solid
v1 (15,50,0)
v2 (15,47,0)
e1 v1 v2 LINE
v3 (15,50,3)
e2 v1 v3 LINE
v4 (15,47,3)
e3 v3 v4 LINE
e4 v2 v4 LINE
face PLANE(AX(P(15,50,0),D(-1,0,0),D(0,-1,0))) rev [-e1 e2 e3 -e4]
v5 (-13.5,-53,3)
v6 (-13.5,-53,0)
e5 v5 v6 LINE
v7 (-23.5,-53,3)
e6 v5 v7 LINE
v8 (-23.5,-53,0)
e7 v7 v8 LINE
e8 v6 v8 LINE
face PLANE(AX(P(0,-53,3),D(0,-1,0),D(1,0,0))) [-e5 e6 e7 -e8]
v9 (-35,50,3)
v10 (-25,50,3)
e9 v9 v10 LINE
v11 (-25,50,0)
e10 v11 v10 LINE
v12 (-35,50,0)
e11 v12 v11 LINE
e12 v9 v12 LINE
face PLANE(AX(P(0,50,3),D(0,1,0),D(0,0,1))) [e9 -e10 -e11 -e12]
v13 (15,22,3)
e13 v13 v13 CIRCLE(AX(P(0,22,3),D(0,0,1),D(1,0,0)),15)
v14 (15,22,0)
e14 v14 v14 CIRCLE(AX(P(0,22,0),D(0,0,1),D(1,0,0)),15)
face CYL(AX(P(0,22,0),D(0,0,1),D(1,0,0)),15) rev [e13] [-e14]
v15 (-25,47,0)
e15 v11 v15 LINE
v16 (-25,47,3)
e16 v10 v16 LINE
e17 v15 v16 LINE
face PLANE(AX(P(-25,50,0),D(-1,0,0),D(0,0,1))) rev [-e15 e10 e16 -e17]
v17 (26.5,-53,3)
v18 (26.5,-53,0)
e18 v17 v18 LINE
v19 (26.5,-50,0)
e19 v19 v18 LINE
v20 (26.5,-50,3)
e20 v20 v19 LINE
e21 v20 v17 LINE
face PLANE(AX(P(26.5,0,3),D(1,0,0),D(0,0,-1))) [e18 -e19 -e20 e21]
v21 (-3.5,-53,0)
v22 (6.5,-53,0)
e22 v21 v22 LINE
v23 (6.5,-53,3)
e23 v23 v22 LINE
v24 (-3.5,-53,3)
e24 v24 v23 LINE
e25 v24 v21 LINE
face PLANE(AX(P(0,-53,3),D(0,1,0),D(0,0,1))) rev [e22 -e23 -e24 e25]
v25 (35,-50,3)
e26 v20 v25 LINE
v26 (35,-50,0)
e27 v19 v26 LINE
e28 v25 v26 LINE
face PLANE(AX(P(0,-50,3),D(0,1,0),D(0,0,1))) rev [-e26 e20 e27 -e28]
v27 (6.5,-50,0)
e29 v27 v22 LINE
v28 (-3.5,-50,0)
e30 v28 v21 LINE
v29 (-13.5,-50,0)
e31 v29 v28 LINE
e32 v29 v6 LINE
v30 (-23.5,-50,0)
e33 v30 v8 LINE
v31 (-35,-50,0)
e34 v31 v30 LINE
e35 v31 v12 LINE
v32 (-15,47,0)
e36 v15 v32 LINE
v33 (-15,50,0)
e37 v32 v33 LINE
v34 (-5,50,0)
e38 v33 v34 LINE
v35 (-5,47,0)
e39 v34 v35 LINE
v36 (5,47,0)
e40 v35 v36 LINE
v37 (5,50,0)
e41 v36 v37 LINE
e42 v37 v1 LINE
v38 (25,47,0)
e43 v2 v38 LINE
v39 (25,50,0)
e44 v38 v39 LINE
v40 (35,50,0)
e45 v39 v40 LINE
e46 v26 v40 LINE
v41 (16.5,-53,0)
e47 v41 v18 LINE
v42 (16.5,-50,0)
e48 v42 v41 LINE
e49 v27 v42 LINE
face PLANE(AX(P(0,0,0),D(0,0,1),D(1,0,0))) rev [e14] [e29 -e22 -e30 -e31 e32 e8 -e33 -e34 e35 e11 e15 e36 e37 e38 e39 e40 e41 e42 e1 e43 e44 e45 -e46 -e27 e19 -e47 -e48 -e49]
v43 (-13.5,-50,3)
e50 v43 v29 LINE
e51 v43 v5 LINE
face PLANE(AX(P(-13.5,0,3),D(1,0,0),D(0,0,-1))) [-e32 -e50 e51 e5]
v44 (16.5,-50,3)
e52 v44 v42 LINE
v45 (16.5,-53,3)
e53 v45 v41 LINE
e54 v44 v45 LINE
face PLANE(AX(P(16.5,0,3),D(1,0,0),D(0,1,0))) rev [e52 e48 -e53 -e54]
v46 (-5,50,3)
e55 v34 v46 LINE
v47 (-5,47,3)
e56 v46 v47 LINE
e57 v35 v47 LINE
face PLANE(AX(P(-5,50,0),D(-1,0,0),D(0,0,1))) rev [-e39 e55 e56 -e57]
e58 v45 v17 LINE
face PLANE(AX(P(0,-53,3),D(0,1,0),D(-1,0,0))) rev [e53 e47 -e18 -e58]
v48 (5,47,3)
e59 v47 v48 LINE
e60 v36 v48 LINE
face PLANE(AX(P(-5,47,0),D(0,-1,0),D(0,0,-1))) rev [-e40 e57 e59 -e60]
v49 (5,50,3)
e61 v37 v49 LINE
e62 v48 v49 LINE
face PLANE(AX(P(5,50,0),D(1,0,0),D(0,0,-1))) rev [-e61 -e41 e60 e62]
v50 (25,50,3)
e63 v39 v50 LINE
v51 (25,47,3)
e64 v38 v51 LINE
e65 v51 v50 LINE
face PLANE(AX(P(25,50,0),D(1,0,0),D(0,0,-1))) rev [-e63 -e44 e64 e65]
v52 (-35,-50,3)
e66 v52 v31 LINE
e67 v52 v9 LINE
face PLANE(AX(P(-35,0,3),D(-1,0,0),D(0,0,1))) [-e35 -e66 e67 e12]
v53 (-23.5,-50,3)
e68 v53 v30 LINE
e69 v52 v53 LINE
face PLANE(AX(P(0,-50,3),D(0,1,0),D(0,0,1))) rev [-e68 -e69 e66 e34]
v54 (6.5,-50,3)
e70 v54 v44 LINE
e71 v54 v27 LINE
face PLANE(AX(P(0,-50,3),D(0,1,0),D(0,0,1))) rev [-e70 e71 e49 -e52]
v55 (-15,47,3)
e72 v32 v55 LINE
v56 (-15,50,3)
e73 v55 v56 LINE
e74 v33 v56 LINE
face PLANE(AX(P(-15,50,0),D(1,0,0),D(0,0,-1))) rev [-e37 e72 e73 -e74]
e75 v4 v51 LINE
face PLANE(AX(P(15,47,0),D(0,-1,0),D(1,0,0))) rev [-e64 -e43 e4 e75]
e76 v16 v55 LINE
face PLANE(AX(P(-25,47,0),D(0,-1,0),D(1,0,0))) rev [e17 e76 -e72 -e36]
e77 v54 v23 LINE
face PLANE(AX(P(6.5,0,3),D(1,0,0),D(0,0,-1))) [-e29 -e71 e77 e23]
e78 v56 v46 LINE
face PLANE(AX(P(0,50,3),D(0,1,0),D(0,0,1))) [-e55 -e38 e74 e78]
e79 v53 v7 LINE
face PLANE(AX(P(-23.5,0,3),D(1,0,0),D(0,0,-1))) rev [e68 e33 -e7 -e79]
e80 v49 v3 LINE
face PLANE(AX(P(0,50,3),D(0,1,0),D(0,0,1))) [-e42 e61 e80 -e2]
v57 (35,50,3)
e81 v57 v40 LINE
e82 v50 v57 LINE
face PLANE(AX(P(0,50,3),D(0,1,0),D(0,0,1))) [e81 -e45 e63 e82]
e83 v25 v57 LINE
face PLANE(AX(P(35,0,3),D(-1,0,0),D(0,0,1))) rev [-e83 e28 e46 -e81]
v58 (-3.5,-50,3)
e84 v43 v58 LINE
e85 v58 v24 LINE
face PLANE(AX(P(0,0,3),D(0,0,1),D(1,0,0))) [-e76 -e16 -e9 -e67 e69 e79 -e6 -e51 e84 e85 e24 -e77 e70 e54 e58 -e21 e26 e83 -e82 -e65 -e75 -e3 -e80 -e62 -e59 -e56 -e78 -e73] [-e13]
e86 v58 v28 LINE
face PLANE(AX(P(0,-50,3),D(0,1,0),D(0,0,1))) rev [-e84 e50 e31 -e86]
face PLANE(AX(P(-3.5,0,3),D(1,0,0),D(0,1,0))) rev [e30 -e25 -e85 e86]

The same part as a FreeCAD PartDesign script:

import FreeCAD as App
import Part
import Sketcher
from FreeCAD import Vector

doc = App.newDocument("Part")
params = doc.addObject("Spreadsheet::Sheet", "Params")
for row, (alias, value) in enumerate([
    ("sketch1_width", "10 mm"),
    ("sketch1_width2", "70 mm"),
    ("sketch1_height", "100 mm"),
    ("sketch1_height2", "3 mm"),
    ("sketch1_width3", "11.5 mm"),
    ("pad1_length", "3 mm"),
    ("sketch2_width", "10 mm"),
    ("sketch2_height", "3 mm"),
    ("sketch3_diameter", "30 mm"),
], start=1):
    params.set(f"A{row}", alias)
    params.set(f"B{row}", "=" + value)
    params.setAlias(f"B{row}", alias)

body = doc.addObject("PartDesign::Body", "Body")

sketch1 = body.newObject("Sketcher::SketchObject", "Sketch")
sketch1.AttachmentSupport = (doc.getObject("XY_Plane"), [""])
sketch1.MapMode = "FlatFace"
sketch1.addGeometry([
    Part.LineSegment(Vector(-35, 50, 0), Vector(-35, -50, 0)),
    Part.LineSegment(Vector(-35, -50, 0), Vector(-23.5, -50, 0)),
    Part.LineSegment(Vector(-23.5, -50, 0), Vector(-23.5, -53, 0)),
    Part.LineSegment(Vector(-23.5, -53, 0), Vector(-13.5, -53, 0)),
    Part.LineSegment(Vector(-13.5, -53, 0), Vector(-13.5, -50, 0)),
    Part.LineSegment(Vector(-13.5, -50, 0), Vector(-3.5, -50, 0)),
    Part.LineSegment(Vector(-3.5, -50, 0), Vector(-3.5, -53, 0)),
    Part.LineSegment(Vector(-3.5, -53, 0), Vector(6.5, -53, 0)),
    Part.LineSegment(Vector(6.5, -53, 0), Vector(6.5, -50, 0)),
    Part.LineSegment(Vector(6.5, -50, 0), Vector(16.5, -50, 0)),
    Part.LineSegment(Vector(16.5, -50, 0), Vector(16.5, -53, 0)),
    Part.LineSegment(Vector(16.5, -53, 0), Vector(26.5, -53, 0)),
    Part.LineSegment(Vector(26.5, -53, 0), Vector(26.5, -50, 0)),
    Part.LineSegment(Vector(26.5, -50, 0), Vector(35, -50, 0)),
    Part.LineSegment(Vector(35, -50, 0), Vector(35, 50, 0)),
    Part.LineSegment(Vector(35, 50, 0), Vector(-35, 50, 0)),
], False)
sketch1.addConstraint([
    Sketcher.Constraint("Coincident", 0, 2, 1, 1),
    Sketcher.Constraint("Coincident", 1, 2, 2, 1),
    Sketcher.Constraint("Coincident", 2, 2, 3, 1),
    Sketcher.Constraint("Coincident", 3, 2, 4, 1),
    Sketcher.Constraint("Coincident", 4, 2, 5, 1),
    Sketcher.Constraint("Coincident", 5, 2, 6, 1),
    Sketcher.Constraint("Coincident", 6, 2, 7, 1),
    Sketcher.Constraint("Coincident", 7, 2, 8, 1),
    Sketcher.Constraint("Coincident", 8, 2, 9, 1),
    Sketcher.Constraint("Coincident", 9, 2, 10, 1),
    Sketcher.Constraint("Coincident", 10, 2, 11, 1),
    Sketcher.Constraint("Coincident", 11, 2, 12, 1),
    Sketcher.Constraint("Coincident", 12, 2, 13, 1),
    Sketcher.Constraint("Coincident", 13, 2, 14, 1),
    Sketcher.Constraint("Coincident", 14, 2, 15, 1),
    Sketcher.Constraint("Coincident", 15, 2, 0, 1),
    Sketcher.Constraint("Vertical", 0),
    Sketcher.Constraint("Horizontal", 1),
    Sketcher.Constraint("Vertical", 2),
    Sketcher.Constraint("Horizontal", 3),
    Sketcher.Constraint("Vertical", 4),
    Sketcher.Constraint("Horizontal", 5),
    Sketcher.Constraint("Vertical", 6),
    Sketcher.Constraint("Horizontal", 7),
    Sketcher.Constraint("Vertical", 8),
    Sketcher.Constraint("Horizontal", 9),
    Sketcher.Constraint("Vertical", 10),
    Sketcher.Constraint("Horizontal", 11),
    Sketcher.Constraint("Vertical", 12),
    Sketcher.Constraint("Horizontal", 13),
    Sketcher.Constraint("Vertical", 14),
    Sketcher.Constraint("Horizontal", 15),
    Sketcher.Constraint("Symmetric", 0, 2, 14, 2, -1, 1),
    Sketcher.Constraint("Horizontal", 1, 2, 4, 2),
    Sketcher.Constraint("Horizontal", 3, 2, 6, 2),
    Sketcher.Constraint("Horizontal", 5, 2, 8, 2),
    Sketcher.Constraint("Horizontal", 7, 2, 10, 2),
    Sketcher.Constraint("Horizontal", 9, 2, 12, 2),
    Sketcher.Constraint("Equal", 3, 5),
    Sketcher.Constraint("Equal", 5, 7),
    Sketcher.Constraint("Equal", 7, 9),
    Sketcher.Constraint("Equal", 9, 11),
    Sketcher.Constraint("DistanceX", 3, 1, 3, 2, 10.0),
    Sketcher.Constraint("DistanceX", 15, 2, 15, 1, 70.0),
    Sketcher.Constraint("DistanceY", 0, 2, 0, 1, 100.0),
    Sketcher.Constraint("DistanceY", 2, 2, 2, 1, 3.0),
    Sketcher.Constraint("DistanceX", 1, 1, 1, 2, 11.5),
])
sketch1.setExpression("Constraints[42]", "Params.sketch1_width")
sketch1.setExpression("Constraints[43]", "Params.sketch1_width2")
sketch1.setExpression("Constraints[44]", "Params.sketch1_height")
sketch1.setExpression("Constraints[45]", "Params.sketch1_height2")
sketch1.setExpression("Constraints[46]", "Params.sketch1_width3")
pad1 = body.newObject("PartDesign::Pad", "Pad")
pad1.Profile = sketch1
pad1.setExpression("Length", "Params.pad1_length")

sketch2 = body.newObject("Sketcher::SketchObject", "Sketch001")
sketch2.AttachmentSupport = (doc.getObject("XY_Plane"), [""])
sketch2.MapMode = "FlatFace"
sketch2.AttachmentOffset = App.Placement(Vector(0, 0, 3), App.Rotation())
sketch2.addGeometry([
    Part.LineSegment(Vector(-25, 50, 0), Vector(-25, 47, 0)),
    Part.LineSegment(Vector(-25, 47, 0), Vector(-15, 47, 0)),
    Part.LineSegment(Vector(-15, 47, 0), Vector(-15, 50, 0)),
    Part.LineSegment(Vector(-15, 50, 0), Vector(-25, 50, 0)),
    Part.LineSegment(Vector(-5, 50, 0), Vector(-5, 47, 0)),
    Part.LineSegment(Vector(-5, 47, 0), Vector(5, 47, 0)),
    Part.LineSegment(Vector(5, 47, 0), Vector(5, 50, 0)),
    Part.LineSegment(Vector(5, 50, 0), Vector(-5, 50, 0)),
    Part.LineSegment(Vector(15, 50, 0), Vector(15, 47, 0)),
    Part.LineSegment(Vector(15, 47, 0), Vector(25, 47, 0)),
    Part.LineSegment(Vector(25, 47, 0), Vector(25, 50, 0)),
    Part.LineSegment(Vector(25, 50, 0), Vector(15, 50, 0)),
], False)
sketch2.addConstraint([
    Sketcher.Constraint("Coincident", 0, 2, 1, 1),
    Sketcher.Constraint("Coincident", 1, 2, 2, 1),
    Sketcher.Constraint("Coincident", 2, 2, 3, 1),
    Sketcher.Constraint("Coincident", 3, 2, 0, 1),
    Sketcher.Constraint("Coincident", 4, 2, 5, 1),
    Sketcher.Constraint("Coincident", 5, 2, 6, 1),
    Sketcher.Constraint("Coincident", 6, 2, 7, 1),
    Sketcher.Constraint("Coincident", 7, 2, 4, 1),
    Sketcher.Constraint("Coincident", 8, 2, 9, 1),
    Sketcher.Constraint("Coincident", 9, 2, 10, 1),
    Sketcher.Constraint("Coincident", 10, 2, 11, 1),
    Sketcher.Constraint("Coincident", 11, 2, 8, 1),
    Sketcher.Constraint("Vertical", 0),
    Sketcher.Constraint("Horizontal", 1),
    Sketcher.Constraint("Vertical", 2),
    Sketcher.Constraint("Horizontal", 3),
    Sketcher.Constraint("Vertical", 4),
    Sketcher.Constraint("Horizontal", 5),
    Sketcher.Constraint("Vertical", 6),
    Sketcher.Constraint("Horizontal", 7),
    Sketcher.Constraint("Vertical", 8),
    Sketcher.Constraint("Horizontal", 9),
    Sketcher.Constraint("Vertical", 10),
    Sketcher.Constraint("Horizontal", 11),
    Sketcher.Constraint("Symmetric", 1, 2, 8, 2, -2),
    Sketcher.Constraint("Symmetric", 3, 2, 10, 2, -2),
    Sketcher.Constraint("Horizontal", 1, 2, 4, 2),
    Sketcher.Constraint("Horizontal", 3, 2, 6, 2),
    Sketcher.Constraint("Equal", 3, 5),
    Sketcher.Constraint("DistanceX", 1, 1, 1, 2, 10.0),
    Sketcher.Constraint("DistanceY", 0, 2, 0, 1, 3.0),
    Sketcher.Constraint("DistanceX", 0, 2, -1, 1, 25.0),
    Sketcher.Constraint("DistanceY", -1, 1, 0, 2, 47.0),
    Sketcher.Constraint("DistanceX", 4, 2, -1, 1, 5.0),
])
sketch2.setExpression("Constraints[29]", "Params.sketch2_width")
sketch2.setExpression("Constraints[30]", "Params.sketch2_height")
pocket1 = body.newObject("PartDesign::Pocket", "Pocket")
pocket1.Profile = sketch2
pocket1.Type = "ThroughAll"

sketch3 = body.newObject("Sketcher::SketchObject", "Sketch002")
sketch3.AttachmentSupport = (doc.getObject("XY_Plane"), [""])
sketch3.MapMode = "FlatFace"
sketch3.AttachmentOffset = App.Placement(Vector(0, 0, 3), App.Rotation())
sketch3.addGeometry(Part.Circle(Vector(0, 22, 0), Vector(0, 0, 1), 15), False)
sketch3.addConstraint([
    Sketcher.Constraint("PointOnObject", 0, 3, -2),
    Sketcher.Constraint("Diameter", 0, 30.0),
    Sketcher.Constraint("DistanceY", -1, 1, 0, 3, 22.0),
])
sketch3.setExpression("Constraints[1]", "Params.sketch3_diameter")
pocket2 = body.newObject("PartDesign::Pocket", "Pocket001")
pocket2.Profile = sketch3
pocket2.Type = "ThroughAll"

doc.recompute()
